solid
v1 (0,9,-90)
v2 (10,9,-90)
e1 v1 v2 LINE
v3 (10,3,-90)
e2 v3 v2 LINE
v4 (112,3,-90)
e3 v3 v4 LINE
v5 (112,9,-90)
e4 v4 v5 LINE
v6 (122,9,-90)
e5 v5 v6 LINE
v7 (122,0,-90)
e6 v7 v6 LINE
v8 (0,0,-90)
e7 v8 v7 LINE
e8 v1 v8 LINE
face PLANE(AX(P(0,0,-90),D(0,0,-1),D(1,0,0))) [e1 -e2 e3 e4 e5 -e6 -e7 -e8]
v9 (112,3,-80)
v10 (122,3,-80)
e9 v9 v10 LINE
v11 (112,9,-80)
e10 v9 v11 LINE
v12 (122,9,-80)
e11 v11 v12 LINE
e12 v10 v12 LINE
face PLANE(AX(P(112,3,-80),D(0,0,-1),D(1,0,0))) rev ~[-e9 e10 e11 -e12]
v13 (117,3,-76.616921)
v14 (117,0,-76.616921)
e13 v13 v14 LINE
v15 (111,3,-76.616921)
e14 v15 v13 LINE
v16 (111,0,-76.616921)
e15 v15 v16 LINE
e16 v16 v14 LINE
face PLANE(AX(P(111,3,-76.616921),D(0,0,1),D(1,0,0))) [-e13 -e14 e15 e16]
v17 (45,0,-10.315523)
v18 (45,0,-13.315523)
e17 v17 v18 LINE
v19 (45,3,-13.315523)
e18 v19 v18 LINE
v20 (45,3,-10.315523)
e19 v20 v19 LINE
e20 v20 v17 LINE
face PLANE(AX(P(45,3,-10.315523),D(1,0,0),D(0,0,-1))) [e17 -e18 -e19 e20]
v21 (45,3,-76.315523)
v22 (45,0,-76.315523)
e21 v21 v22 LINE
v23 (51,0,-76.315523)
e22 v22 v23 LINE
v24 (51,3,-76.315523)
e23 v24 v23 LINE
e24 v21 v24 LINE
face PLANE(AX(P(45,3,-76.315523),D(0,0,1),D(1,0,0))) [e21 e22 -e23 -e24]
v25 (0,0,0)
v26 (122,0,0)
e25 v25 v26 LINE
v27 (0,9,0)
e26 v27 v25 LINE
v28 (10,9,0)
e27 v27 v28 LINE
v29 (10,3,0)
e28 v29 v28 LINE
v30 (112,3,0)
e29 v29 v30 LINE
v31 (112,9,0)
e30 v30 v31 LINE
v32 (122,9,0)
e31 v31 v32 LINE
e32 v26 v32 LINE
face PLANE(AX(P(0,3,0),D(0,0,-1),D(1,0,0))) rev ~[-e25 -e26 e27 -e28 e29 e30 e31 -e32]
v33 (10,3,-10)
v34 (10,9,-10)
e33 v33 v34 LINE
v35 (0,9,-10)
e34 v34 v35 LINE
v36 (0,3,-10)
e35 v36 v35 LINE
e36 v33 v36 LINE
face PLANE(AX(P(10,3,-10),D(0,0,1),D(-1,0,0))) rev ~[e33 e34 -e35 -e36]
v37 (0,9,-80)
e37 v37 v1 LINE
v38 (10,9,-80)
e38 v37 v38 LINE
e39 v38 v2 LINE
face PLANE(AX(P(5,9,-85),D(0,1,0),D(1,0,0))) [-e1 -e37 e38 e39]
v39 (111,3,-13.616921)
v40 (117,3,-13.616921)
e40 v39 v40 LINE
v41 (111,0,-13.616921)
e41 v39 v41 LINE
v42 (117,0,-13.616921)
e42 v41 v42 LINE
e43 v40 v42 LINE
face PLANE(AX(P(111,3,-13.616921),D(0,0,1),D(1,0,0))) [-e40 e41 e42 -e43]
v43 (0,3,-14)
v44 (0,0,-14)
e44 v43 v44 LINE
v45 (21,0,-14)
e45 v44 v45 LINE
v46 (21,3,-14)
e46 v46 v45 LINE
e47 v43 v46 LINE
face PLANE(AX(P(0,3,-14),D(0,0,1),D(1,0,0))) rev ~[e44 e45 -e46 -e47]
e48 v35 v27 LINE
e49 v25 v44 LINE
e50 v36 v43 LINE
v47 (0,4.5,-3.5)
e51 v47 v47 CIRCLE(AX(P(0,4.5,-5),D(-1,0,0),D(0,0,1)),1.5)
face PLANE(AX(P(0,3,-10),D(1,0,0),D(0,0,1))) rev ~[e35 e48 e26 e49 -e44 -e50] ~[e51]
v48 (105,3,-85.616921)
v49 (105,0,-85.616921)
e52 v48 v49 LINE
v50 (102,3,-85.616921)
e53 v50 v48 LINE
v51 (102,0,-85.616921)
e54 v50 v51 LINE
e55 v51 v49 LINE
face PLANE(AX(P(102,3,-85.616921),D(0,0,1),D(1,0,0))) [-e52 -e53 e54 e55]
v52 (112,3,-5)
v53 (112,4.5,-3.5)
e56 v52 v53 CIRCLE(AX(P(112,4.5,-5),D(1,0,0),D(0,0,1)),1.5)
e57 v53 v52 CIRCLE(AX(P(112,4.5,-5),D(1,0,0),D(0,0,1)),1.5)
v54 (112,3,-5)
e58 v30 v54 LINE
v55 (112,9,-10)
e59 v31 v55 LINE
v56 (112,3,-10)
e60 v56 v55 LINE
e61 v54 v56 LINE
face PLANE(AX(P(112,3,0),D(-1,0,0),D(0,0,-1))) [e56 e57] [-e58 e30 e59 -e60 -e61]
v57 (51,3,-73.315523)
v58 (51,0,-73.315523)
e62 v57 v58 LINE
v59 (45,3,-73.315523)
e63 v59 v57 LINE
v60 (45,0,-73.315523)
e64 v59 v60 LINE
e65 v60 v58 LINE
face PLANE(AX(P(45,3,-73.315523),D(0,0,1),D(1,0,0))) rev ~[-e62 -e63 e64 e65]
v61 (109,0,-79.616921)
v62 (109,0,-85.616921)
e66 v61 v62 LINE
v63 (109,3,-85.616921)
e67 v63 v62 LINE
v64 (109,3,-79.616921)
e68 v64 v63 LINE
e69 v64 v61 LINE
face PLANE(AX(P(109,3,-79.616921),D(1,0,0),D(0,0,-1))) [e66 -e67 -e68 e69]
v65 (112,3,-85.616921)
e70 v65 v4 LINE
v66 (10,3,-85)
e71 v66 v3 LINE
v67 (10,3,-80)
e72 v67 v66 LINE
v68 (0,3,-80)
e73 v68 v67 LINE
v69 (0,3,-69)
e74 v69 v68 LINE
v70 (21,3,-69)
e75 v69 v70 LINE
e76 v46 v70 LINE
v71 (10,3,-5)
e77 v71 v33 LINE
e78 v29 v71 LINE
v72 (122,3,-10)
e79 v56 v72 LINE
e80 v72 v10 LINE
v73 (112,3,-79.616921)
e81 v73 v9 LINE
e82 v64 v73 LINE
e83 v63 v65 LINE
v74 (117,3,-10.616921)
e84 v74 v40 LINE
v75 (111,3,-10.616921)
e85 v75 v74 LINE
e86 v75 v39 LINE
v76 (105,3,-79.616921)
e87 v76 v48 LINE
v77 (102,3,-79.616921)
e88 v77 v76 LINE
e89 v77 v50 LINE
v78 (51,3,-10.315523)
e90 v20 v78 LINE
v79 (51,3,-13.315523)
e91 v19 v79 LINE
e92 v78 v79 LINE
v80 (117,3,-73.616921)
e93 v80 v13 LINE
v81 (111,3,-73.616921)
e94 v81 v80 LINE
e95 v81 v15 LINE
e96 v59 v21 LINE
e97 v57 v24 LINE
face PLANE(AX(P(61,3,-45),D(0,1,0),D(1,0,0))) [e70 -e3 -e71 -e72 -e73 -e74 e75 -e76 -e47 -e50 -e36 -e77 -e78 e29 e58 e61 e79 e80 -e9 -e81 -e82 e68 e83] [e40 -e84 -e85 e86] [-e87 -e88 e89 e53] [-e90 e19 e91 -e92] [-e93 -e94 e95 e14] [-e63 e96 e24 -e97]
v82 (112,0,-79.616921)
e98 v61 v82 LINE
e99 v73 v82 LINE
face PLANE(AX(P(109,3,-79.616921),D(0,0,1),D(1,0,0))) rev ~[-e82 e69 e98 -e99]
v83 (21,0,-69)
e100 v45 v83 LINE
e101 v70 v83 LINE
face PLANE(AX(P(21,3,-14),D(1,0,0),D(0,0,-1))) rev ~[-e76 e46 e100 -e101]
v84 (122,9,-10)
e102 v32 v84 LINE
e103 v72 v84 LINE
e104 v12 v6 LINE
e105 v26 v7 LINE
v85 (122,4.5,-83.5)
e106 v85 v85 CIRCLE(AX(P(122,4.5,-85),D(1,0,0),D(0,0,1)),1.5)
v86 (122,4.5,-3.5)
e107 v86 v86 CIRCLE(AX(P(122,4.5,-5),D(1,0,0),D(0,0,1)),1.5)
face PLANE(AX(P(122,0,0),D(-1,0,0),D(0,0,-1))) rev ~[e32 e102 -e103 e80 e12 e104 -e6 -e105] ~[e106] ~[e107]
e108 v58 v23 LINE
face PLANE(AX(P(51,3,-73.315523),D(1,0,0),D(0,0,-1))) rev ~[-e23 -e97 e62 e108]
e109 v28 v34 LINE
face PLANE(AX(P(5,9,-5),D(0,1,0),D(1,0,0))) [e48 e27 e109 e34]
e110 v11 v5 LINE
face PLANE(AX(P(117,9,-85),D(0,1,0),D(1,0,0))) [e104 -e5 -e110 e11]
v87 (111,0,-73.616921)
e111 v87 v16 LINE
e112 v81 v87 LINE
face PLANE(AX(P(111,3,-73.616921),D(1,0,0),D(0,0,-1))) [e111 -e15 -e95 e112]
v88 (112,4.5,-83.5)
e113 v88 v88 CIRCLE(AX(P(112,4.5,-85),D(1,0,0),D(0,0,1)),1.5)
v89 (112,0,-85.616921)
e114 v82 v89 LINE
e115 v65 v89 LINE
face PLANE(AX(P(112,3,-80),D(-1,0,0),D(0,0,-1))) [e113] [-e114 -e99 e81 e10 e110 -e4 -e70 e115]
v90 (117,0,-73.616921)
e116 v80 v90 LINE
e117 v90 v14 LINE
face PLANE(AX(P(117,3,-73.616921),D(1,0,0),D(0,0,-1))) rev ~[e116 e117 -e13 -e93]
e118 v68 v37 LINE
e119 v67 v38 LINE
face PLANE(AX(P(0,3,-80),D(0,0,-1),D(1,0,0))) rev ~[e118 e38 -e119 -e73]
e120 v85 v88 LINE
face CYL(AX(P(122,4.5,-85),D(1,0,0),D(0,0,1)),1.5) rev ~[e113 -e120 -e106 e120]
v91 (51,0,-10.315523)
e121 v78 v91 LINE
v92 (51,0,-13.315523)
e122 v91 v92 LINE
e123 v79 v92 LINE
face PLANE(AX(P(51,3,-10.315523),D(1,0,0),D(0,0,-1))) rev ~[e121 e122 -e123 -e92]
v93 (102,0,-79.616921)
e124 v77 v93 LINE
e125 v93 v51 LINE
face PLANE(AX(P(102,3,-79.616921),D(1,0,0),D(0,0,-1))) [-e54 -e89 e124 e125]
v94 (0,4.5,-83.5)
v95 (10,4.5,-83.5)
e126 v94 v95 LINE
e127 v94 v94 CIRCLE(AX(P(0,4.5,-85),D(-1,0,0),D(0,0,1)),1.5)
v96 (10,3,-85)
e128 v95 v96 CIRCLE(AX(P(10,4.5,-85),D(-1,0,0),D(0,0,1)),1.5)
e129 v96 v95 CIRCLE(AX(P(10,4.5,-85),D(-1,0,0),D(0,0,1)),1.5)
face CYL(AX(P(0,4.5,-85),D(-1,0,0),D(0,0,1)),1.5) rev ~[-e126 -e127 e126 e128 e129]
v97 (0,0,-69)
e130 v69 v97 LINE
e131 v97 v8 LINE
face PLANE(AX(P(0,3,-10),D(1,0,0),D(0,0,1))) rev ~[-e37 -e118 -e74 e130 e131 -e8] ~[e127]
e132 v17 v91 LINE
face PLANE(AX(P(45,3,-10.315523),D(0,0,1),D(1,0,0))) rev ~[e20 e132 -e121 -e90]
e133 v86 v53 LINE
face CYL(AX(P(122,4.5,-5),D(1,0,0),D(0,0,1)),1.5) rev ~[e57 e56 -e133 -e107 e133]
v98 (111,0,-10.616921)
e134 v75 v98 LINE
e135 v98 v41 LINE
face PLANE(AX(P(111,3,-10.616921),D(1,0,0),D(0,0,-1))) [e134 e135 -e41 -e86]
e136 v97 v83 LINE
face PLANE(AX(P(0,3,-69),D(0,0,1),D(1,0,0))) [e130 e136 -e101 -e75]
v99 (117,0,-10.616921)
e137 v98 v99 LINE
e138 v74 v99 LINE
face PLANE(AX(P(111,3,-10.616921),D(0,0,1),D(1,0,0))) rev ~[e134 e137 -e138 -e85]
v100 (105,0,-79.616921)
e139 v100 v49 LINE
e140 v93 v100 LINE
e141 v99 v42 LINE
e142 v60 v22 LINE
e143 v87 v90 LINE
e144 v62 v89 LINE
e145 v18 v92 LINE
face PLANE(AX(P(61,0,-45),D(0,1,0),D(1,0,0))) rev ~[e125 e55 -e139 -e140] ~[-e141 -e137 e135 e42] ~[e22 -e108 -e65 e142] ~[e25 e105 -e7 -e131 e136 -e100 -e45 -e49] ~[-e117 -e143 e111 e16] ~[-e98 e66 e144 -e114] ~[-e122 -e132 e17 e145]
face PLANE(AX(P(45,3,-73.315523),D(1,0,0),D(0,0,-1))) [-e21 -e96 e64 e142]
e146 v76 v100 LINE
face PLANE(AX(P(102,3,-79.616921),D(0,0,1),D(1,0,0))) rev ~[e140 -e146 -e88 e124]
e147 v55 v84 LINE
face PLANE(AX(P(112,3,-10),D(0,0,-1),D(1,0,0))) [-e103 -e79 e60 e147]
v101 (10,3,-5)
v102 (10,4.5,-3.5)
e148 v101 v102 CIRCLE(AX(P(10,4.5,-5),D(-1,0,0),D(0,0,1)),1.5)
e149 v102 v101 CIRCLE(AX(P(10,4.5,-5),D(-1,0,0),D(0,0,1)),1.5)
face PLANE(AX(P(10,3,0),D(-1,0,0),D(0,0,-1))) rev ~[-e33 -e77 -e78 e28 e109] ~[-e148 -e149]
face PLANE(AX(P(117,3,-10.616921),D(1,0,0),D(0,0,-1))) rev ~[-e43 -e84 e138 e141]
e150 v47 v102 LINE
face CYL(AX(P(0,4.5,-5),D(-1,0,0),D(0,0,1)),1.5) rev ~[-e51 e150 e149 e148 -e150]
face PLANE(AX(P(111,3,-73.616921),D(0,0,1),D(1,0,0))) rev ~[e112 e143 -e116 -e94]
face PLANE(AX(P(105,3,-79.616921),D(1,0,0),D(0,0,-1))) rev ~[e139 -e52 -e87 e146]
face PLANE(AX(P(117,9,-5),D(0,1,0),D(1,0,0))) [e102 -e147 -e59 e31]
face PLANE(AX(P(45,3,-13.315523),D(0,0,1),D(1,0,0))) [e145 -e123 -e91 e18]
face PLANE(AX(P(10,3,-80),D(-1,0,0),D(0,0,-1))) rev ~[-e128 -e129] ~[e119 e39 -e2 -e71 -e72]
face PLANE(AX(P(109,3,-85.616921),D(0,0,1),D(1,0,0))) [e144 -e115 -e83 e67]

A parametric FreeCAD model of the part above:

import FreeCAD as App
import Part
import Sketcher
from FreeCAD import Vector


def add_polygon(sketch, points):
    """Adds a closed chain of lines whose ends are joined by coincident constraints."""
    first, n = sketch.GeometryCount, len(points)
    for a, b in zip(points, points[1:] + points[:1]):
        sketch.addGeometry(Part.LineSegment(App.Vector(*a, 0), App.Vector(*b, 0)), False)
    for i in range(n):
        sketch.addConstraint(Sketcher.Constraint("Coincident", first + i, 2, first + (i + 1) % n, 1))

doc = App.newDocument("Part")
body = doc.addObject("PartDesign::Body", "Body")

sketch1 = doc.addObject("Sketcher::SketchObject", "Sketch")
body.addObject(sketch1)
sketch1.AttachmentSupport = (doc.XZ_Plane, [""])
sketch1.MapMode = "FlatFace"
add_polygon(sketch1, [(0, -90), (0, 0), (122, 0), (122, -90)])
sketch1.addConstraint([
    Sketcher.Constraint("Vertical", 0),
    Sketcher.Constraint("Horizontal", 1),
    Sketcher.Constraint("Vertical", 2),
    Sketcher.Constraint("Horizontal", 3),
    Sketcher.Constraint("Coincident", 0, 2, -1, 1),
    Sketcher.Constraint("DistanceX", 1, 1, 1, 2, 122.0),
    Sketcher.Constraint("DistanceY", 0, 1, 0, 2, 90.0),
])
pad1 = doc.addObject("PartDesign::Pad", "Pad")
body.addObject(pad1)
pad1.Profile = sketch1
pad1.Length = 3
pad1.Reversed = True

sketch2 = doc.addObject("Sketcher::SketchObject", "Sketch001")
body.addObject(sketch2)
sketch2.AttachmentSupport = (doc.XZ_Plane, [""])
sketch2.MapMode = "FlatFace"
sketch2.AttachmentOffset = App.Placement(Vector(0, 0, -3), App.Rotation())
add_polygon(sketch2, [(0, 0), (10, 0), (10, -10), (0, -10)])
add_polygon(sketch2, [(0, -90), (0, -80), (10, -80), (10, -90)])
add_polygon(sketch2, [(112, -90), (112, -80), (122, -80), (122, -90)])
add_polygon(sketch2, [(112, -10), (112, 0), (122, 0), (122, -10)])
sketch2.addConstraint([
    Sketcher.Constraint("Horizontal", 0),
    Sketcher.Constraint("Vertical", 1),
    Sketcher.Constraint("Horizontal", 2),
    Sketcher.Constraint("Vertical", 3),
    Sketcher.Constraint("Vertical", 4),
    Sketcher.Constraint("Horizontal", 5),
    Sketcher.Constraint("Vertical", 6),
    Sketcher.Constraint("Horizontal", 7),
    Sketcher.Constraint("Vertical", 8),
    Sketcher.Constraint("Horizontal", 9),
    Sketcher.Constraint("Vertical", 10),
    Sketcher.Constraint("Horizontal", 11),
    Sketcher.Constraint("Vertical", 12),
    Sketcher.Constraint("Horizontal", 13),
    Sketcher.Constraint("Vertical", 14),
    Sketcher.Constraint("Horizontal", 15),
    Sketcher.Constraint("Coincident", 3, 2, -1, 1),
    Sketcher.Constraint("PointOnObject", 4, 2, -2),
    Sketcher.Constraint("PointOnObject", 12, 2, -1),
    Sketcher.Constraint("Horizontal", 5, 2, 8, 2),
    Sketcher.Constraint("Horizontal", 7, 2, 10, 2),
    Sketcher.Constraint("Horizontal", 2, 2, 14, 2),
    Sketcher.Constraint("Vertical", 1, 2, 5, 2),
    Sketcher.Constraint("Vertical", 11, 2, 12, 2),
    Sketcher.Constraint("Vertical", 10, 2, 13, 2),
    Sketcher.Constraint("Equal", 7, 9),
    Sketcher.Constraint("Equal", 15, 1),
    Sketcher.Constraint("Equal", 3, 4),
    Sketcher.Constraint("DistanceX", 0, 1, 0, 2, 10.0),
    Sketcher.Constraint("DistanceY", 4, 2, -1, 1, 80.0),
    Sketcher.Constraint("DistanceX", -1, 1, 8, 2, 112.0),
])
pad2 = doc.addObject("PartDesign::Pad", "Pad001")
body.addObject(pad2)
pad2.Profile = sketch2
pad2.Length = 6
pad2.Reversed = True

sketch3 = doc.addObject("Sketcher::SketchObject", "Sketch002")
body.addObject(sketch3)
sketch3.AttachmentSupport = (doc.YZ_Plane, [""])
sketch3.MapMode = "FlatFace"
sketch3.addGeometry(Part.Circle(Vector(4.5, -85, 0), Vector(0, 0, 1), 1.5), False)
sketch3.addConstraint([
    Sketcher.Constraint("Diameter", 0, 3.0),
    Sketcher.Constraint("DistanceY", 0, 3, -1, 1, 85.0),
    Sketcher.Constraint("DistanceX", -1, 1, 0, 3, 4.5),
])
pocket1 = doc.addObject("PartDesign::Pocket", "Pocket")
body.addObject(pocket1)
pocket1.Profile = sketch3
pocket1.Type = "UpToFirst"
pocket1.Reversed = True

sketch4 = doc.addObject("Sketcher::SketchObject", "Sketch003")
body.addObject(sketch4)
sketch4.AttachmentSupport = (doc.YZ_Plane, [""])
sketch4.MapMode = "FlatFace"
sketch4.addGeometry(Part.Circle(Vector(4.5, -5, 0), Vector(0, 0, 1), 1.5), False)
sketch4.addConstraint([
    Sketcher.Constraint("Diameter", 0, 3.0),
    Sketcher.Constraint("DistanceY", 0, 3, -1, 1, 5.0),
    Sketcher.Constraint("DistanceX", -1, 1, 0, 3, 4.5),
])
pocket2 = doc.addObject("PartDesign::Pocket", "Pocket001")
body.addObject(pocket2)
pocket2.Profile = sketch4
pocket2.Type = "UpToFirst"
pocket2.Reversed = True

sketch5 = doc.addObject("Sketcher::SketchObject", "Sketch004")
body.addObject(sketch5)
sketch5.AttachmentSupport = (doc.YZ_Plane, [""])
sketch5.MapMode = "FlatFace"
sketch5.AttachmentOffset = App.Placement(Vector(0, 0, 122), App.Rotation())
sketch5.addGeometry(Part.Circle(Vector(4.5, -85, 0), Vector(0, 0, 1), 1.5), False)
sketch5.addConstraint([
    Sketcher.Constraint("Diameter", 0, 3.0),
    Sketcher.Constraint("DistanceY", 0, 3, -1, 1, 85.0),
    Sketcher.Constraint("DistanceX", -1, 1, 0, 3, 4.5),
])
pocket3 = doc.addObject("PartDesign::Pocket", "Pocket002")
body.addObject(pocket3)
pocket3.Profile = sketch5
pocket3.Type = "UpToFirst"

sketch6 = doc.addObject("Sketcher::SketchObject", "Sketch005")
body.addObject(sketch6)
sketch6.AttachmentSupport = (doc.YZ_Plane, [""])
sketch6.MapMode = "FlatFace"
sketch6.AttachmentOffset = App.Placement(Vector(0, 0, 122), App.Rotation())
sketch6.addGeometry(Part.Circle(Vector(4.5, -5, 0), Vector(0, 0, 1), 1.5), False)
sketch6.addConstraint([
    Sketcher.Constraint("Diameter", 0, 3.0),
    Sketcher.Constraint("DistanceY", 0, 3, -1, 1, 5.0),
    Sketcher.Constraint("DistanceX", -1, 1, 0, 3, 4.5),
])
pocket4 = doc.addObject("PartDesign::Pocket", "Pocket003")
body.addObject(pocket4)
pocket4.Profile = sketch6
pocket4.Type = "UpToFirst"

sketch7 = doc.addObject("Sketcher::SketchObject", "Sketch006")
body.addObject(sketch7)
sketch7.AttachmentSupport = (doc.XZ_Plane, [""])
sketch7.MapMode = "FlatFace"
sketch7.AttachmentOffset = App.Placement(Vector(0, 0, -3), App.Rotation())
add_polygon(sketch7, [(45, -76.3), (45, -73.3), (51, -73.3), (51, -76.3)])
add_polygon(sketch7, [(111, -76.6), (111, -73.6), (117, -73.6), (117, -76.6)])
add_polygon(sketch7, [(45, -13.3), (45, -10.3), (51, -10.3), (51, -13.3)])
add_polygon(sketch7, [(111, -13.6), (111, -10.6), (117, -10.6), (117, -13.6)])
add_polygon(sketch7, [(109, -85.6), (109, -79.6), (112, -79.6), (112, -85.6)])
add_polygon(sketch7, [(102, -85.6), (102, -79.6), (105, -79.6), (105, -85.6)])
add_polygon(sketch7, [(0, -69), (0, -14), (21, -14), (21, -69)])
sketch7.addConstraint([
    Sketcher.Constraint("Vertical", 0),
    Sketcher.Constraint("Horizontal", 1),
    Sketcher.Constraint("Vertical", 2),
    Sketcher.Constraint("Horizontal", 3),
    Sketcher.Constraint("Vertical", 4),
    Sketcher.Constraint("Horizontal", 5),
    Sketcher.Constraint("Vertical", 6),
    Sketcher.Constraint("Horizontal", 7),
    Sketcher.Constraint("Vertical", 8),
    Sketcher.Constraint("Horizontal", 9),
    Sketcher.Constraint("Vertical", 10),
    Sketcher.Constraint("Horizontal", 11),
    Sketcher.Constraint("Vertical", 12),
    Sketcher.Constraint("Horizontal", 13),
    Sketcher.Constraint("Vertical", 14),
    Sketcher.Constraint("Horizontal", 15),
    Sketcher.Constraint("Vertical", 16),
    Sketcher.Constraint("Horizontal", 17),
    Sketcher.Constraint("Vertical", 18),
    Sketcher.Constraint("Horizontal", 19),
    Sketcher.Constraint("Vertical", 20),
    Sketcher.Constraint("Horizontal", 21),
    Sketcher.Constraint("Vertical", 22),
    Sketcher.Constraint("Horizontal", 23),
    Sketcher.Constraint("Vertical", 24),
    Sketcher.Constraint("Horizontal", 25),
    Sketcher.Constraint("Vertical", 26),
    Sketcher.Constraint("Horizontal", 27),
    Sketcher.Constraint("PointOnObject", 24, 2, -2),
    Sketcher.Constraint("Horizontal", 17, 2, 20, 2),
    Sketcher.Constraint("Horizontal", 19, 2, 22, 2),
    Sketcher.Constraint("Vertical", 3, 2, 8, 2),
    Sketcher.Constraint("Vertical", 2, 2, 9, 2),
    Sketcher.Constraint("Vertical", 7, 2, 12, 2),
    Sketcher.Constraint("Vertical", 6, 2, 13, 2),
    Sketcher.Constraint("Equal", 3, 5),
    Sketcher.Constraint("Equal", 19, 21),
    Sketcher.Constraint("Equal", 23, 0),
    Sketcher.Constraint("Equal", 2, 4),
    Sketcher.Constraint("Equal", 6, 8),
    Sketcher.Constraint("Equal", 10, 12),
    Sketcher.Constraint("Equal", 15, 16),
    Sketcher.Constraint("DistanceX", 1, 1, 1, 2, 6.0),
    Sketcher.Constraint("DistanceX", 17, 1, 17, 2, 3.0),
    Sketcher.Constraint("DistanceX", 25, 1, 25, 2, 21.0),
    Sketcher.Constraint("DistanceY", 24, 1, 24, 2, 55.0),
    Sketcher.Constraint("DistanceX", -1, 1, 0, 2, 45.0),
    Sketcher.Constraint("DistanceX", -1, 1, 4, 2, 111.0),
    Sketcher.Constraint("DistanceX", -1, 1, 16, 2, 109.0),
    Sketcher.Constraint("DistanceX", -1, 1, 20, 2, 102.0),
    Sketcher.Constraint("DistanceY", 24, 2, -1, 1, 14.0),
    Sketcher.Constraint("DistanceY", 0, 2, 8, 2, 63.0),
    Sketcher.Constraint("DistanceY", 4, 2, 12, 2, 63.0),
    Sketcher.Constraint("DistanceY", 16, 2, 7, 2, 3.0),
    Sketcher.Constraint("DistanceY", 4, 2, 1, 2, 0.301398),
    Sketcher.Constraint("DistanceY", 4, 2, -1, 1, 73.616921),
])
pocket5 = doc.addObject("PartDesign::Pocket", "Pocket004")
body.addObject(pocket5)
pocket5.Profile = sketch7
pocket5.Type = "ThroughAll"
pocket5.Reversed = True

doc.recompute()
